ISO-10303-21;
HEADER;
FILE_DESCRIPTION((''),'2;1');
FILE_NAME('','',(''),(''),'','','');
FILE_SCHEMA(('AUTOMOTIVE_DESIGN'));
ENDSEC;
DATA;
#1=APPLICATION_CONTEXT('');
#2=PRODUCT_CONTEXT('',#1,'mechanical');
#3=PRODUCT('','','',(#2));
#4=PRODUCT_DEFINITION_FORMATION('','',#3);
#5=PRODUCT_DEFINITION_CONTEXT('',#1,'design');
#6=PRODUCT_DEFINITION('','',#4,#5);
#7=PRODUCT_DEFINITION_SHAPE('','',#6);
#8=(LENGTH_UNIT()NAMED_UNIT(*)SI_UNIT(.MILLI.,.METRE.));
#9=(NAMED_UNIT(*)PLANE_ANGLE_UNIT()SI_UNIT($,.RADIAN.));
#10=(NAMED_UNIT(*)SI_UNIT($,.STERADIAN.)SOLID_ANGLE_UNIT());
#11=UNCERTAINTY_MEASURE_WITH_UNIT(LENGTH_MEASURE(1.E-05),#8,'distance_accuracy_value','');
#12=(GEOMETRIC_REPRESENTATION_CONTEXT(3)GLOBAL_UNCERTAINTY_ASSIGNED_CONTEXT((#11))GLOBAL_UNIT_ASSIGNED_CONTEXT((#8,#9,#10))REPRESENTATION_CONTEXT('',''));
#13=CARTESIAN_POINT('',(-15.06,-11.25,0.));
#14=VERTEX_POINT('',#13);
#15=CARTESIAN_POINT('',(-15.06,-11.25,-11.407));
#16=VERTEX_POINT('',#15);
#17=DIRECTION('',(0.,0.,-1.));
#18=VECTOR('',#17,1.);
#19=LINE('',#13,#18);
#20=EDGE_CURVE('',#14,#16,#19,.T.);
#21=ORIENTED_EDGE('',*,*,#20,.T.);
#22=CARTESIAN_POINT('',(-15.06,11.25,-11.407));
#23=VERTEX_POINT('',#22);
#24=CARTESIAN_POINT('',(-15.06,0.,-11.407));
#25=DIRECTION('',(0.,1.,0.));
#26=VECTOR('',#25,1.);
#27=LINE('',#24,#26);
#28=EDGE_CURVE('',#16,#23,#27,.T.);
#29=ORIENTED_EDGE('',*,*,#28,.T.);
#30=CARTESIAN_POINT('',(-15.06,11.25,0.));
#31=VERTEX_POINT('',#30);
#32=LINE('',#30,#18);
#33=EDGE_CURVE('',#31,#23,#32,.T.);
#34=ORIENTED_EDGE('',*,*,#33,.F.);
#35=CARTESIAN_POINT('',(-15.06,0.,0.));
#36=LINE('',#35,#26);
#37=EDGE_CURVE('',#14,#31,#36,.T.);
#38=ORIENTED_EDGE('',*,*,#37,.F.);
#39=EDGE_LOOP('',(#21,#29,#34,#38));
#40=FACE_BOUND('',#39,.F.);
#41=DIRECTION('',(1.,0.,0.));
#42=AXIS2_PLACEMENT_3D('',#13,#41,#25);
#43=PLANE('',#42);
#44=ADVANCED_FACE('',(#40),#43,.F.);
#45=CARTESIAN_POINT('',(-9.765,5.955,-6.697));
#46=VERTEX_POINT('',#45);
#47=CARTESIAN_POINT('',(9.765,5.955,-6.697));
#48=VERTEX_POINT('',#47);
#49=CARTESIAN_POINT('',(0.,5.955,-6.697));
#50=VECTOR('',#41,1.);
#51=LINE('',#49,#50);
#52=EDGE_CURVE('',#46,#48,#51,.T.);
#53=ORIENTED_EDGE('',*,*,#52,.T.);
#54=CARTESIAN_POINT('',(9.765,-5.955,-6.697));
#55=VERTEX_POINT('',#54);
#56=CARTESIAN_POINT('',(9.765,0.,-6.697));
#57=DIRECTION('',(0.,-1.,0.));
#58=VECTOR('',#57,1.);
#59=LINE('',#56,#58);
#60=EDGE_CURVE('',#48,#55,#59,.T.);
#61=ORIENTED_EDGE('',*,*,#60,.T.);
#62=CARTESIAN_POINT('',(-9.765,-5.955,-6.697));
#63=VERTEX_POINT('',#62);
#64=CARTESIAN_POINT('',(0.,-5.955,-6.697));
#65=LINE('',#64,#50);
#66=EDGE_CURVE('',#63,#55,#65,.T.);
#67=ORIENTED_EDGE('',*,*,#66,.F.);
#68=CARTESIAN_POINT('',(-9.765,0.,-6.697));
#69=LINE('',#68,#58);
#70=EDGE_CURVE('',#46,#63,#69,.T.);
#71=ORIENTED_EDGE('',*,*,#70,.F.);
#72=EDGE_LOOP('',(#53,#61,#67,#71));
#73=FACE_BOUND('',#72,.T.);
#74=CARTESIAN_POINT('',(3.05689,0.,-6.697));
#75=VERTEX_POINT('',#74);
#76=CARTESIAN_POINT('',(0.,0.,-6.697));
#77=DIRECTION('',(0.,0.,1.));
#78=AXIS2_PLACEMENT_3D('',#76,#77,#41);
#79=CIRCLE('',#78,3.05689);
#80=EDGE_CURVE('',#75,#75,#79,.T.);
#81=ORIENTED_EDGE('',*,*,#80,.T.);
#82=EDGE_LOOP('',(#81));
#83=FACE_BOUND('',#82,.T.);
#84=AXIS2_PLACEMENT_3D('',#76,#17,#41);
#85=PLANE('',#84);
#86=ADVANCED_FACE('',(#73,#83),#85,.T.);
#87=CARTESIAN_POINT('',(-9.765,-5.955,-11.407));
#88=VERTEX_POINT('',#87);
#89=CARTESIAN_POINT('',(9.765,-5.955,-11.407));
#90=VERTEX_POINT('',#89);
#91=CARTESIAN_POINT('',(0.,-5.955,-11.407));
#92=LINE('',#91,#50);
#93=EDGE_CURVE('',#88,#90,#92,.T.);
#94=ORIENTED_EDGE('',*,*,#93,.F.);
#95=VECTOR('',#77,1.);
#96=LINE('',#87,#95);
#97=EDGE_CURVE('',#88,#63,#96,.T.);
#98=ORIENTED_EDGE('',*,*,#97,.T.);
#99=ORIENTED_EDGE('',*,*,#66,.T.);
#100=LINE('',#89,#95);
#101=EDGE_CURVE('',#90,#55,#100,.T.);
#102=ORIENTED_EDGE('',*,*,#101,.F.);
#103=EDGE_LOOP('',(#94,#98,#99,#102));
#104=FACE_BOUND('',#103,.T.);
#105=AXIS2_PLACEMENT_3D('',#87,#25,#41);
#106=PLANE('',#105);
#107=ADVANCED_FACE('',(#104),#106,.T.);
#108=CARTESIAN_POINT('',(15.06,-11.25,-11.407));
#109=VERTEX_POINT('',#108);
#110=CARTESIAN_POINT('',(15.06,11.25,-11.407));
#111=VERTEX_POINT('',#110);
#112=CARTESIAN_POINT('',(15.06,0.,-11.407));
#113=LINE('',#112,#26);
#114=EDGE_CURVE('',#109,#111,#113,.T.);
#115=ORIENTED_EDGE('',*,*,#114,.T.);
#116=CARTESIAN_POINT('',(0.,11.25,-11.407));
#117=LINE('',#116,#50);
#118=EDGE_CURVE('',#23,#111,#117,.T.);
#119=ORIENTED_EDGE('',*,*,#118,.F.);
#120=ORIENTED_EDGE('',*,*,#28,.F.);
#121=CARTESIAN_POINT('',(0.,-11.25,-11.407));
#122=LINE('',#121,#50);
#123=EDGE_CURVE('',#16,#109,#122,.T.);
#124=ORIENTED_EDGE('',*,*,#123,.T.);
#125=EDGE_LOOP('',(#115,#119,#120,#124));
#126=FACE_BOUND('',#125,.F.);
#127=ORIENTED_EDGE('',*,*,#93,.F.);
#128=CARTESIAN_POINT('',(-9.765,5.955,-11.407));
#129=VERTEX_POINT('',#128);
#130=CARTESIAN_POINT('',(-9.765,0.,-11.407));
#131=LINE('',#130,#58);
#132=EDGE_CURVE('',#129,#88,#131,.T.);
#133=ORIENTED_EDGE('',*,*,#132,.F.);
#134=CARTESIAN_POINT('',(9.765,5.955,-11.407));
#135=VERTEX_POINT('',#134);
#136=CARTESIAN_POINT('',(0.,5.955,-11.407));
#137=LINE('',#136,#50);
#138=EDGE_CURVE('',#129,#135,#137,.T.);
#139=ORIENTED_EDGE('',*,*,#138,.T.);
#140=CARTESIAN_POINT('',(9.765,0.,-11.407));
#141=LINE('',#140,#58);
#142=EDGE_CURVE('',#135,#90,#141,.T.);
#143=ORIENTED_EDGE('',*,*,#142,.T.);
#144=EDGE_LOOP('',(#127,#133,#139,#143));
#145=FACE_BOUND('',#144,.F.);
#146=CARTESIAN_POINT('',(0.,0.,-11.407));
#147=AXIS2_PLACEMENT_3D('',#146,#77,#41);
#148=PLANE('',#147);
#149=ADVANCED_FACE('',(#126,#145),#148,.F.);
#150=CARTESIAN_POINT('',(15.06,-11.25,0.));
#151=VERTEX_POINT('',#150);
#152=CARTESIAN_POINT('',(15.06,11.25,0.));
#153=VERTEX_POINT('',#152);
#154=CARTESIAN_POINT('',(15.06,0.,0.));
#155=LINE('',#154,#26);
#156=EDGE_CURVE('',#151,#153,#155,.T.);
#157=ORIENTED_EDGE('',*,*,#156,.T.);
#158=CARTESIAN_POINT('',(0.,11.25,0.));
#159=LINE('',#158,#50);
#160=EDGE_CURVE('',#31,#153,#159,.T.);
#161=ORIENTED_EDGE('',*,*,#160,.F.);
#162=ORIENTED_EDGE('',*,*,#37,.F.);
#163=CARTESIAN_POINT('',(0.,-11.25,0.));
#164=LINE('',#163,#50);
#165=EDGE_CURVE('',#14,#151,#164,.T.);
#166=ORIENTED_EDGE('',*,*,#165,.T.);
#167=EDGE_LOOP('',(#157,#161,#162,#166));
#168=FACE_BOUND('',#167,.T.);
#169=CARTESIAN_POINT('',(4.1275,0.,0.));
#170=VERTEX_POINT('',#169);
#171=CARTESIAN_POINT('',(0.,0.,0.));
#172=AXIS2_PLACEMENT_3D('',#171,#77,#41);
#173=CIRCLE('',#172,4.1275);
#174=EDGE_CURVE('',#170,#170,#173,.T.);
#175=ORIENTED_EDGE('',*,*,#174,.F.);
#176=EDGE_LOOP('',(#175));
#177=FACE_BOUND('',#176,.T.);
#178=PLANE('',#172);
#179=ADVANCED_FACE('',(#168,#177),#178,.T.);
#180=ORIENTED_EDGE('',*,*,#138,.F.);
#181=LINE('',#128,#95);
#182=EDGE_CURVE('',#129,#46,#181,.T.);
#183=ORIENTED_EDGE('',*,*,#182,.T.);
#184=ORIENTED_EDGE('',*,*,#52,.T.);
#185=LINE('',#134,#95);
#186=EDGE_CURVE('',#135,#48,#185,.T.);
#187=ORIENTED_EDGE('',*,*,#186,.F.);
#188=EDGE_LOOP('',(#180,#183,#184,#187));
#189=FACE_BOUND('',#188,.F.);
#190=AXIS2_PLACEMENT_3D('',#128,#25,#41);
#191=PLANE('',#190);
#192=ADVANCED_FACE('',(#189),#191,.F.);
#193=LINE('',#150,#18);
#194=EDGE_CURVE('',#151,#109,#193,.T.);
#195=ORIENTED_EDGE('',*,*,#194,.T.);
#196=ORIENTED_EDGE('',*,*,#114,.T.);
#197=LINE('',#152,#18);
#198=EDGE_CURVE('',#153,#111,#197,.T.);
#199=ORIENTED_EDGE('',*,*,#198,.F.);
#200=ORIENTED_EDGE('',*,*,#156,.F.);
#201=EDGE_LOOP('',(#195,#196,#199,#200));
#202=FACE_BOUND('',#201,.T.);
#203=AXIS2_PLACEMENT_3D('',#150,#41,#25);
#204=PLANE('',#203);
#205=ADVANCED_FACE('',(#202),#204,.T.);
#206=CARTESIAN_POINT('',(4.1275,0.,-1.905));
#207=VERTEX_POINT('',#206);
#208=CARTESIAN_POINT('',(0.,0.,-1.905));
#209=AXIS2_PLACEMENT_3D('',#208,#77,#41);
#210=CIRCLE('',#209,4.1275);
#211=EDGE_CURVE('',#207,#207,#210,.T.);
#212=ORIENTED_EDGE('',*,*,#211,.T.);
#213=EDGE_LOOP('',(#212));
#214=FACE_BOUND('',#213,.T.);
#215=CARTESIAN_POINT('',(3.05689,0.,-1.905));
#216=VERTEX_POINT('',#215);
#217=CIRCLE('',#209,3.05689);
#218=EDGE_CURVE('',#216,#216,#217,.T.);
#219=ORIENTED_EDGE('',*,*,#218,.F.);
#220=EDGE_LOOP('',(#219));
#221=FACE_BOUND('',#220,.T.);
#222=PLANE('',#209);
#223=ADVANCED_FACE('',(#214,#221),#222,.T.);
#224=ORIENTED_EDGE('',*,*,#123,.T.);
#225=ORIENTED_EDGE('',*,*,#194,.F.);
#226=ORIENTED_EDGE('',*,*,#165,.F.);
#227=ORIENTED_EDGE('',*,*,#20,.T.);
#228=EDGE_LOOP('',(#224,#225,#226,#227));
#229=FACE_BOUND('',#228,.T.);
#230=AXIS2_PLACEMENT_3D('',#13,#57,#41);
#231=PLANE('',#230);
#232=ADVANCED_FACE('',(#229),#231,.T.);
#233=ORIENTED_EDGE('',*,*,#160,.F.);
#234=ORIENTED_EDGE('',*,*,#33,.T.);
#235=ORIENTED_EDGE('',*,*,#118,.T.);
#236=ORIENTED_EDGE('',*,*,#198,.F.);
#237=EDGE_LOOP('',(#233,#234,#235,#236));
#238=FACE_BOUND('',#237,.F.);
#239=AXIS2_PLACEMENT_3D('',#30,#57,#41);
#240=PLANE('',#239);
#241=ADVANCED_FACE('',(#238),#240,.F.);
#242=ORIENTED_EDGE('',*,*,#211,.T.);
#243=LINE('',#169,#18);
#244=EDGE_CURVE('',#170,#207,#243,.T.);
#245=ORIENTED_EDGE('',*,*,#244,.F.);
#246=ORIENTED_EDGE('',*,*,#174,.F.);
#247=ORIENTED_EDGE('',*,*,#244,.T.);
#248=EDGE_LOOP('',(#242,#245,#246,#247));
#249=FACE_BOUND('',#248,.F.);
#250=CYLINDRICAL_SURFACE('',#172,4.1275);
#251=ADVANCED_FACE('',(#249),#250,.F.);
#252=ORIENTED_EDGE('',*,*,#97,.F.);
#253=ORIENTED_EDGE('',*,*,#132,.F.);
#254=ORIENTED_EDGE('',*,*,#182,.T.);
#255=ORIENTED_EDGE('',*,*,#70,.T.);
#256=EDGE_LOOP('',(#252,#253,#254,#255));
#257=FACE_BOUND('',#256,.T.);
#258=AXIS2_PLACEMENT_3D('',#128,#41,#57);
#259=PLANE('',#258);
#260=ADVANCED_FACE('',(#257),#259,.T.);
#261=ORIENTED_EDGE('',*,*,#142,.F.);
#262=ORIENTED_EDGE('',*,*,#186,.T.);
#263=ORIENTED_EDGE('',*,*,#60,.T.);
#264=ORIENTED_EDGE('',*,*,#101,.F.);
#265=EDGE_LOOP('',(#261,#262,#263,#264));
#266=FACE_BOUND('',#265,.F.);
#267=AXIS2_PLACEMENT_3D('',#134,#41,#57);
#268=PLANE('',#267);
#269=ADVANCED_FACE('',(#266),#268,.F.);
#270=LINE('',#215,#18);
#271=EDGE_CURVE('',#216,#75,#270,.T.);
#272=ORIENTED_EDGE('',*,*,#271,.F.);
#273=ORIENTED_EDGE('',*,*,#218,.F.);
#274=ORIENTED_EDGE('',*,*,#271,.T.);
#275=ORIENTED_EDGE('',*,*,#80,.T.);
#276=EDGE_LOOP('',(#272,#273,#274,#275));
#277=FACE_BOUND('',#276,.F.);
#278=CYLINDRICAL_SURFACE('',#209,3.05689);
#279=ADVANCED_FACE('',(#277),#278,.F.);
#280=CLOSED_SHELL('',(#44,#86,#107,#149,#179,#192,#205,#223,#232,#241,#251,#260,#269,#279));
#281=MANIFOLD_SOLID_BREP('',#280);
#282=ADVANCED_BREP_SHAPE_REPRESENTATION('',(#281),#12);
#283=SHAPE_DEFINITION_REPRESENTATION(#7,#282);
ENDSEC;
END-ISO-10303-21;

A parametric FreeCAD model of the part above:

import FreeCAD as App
import Part
import Sketcher

V = App.Vector
Q = App.Units.Quantity

doc = App.newDocument("Part")
body = doc.addObject("PartDesign::Body", "Body")

# Sketch on XY plane
sketch1 = doc.addObject("Sketcher::SketchObject", "Sketch")
body.addObject(sketch1)
sketch1.AttachmentSupport = (doc.XY_Plane, [""])
sketch1.MapMode = "FlatFace"
sketch1.addGeometry([
    Part.LineSegment(V(-15, 11, 0), V(-15, -11, 0)),
    Part.LineSegment(V(-15, -11, 0), V(15, -11, 0)),
    Part.LineSegment(V(15, -11, 0), V(15, 11, 0)),
    Part.LineSegment(V(15, 11, 0), V(-15, 11, 0)),
], False)
sketch1.addConstraint([
    Sketcher.Constraint("Coincident", 0, 2, 1, 1),
    Sketcher.Constraint("Coincident", 1, 2, 2, 1),
    Sketcher.Constraint("Coincident", 2, 2, 3, 1),
    Sketcher.Constraint("Coincident", 3, 2, 0, 1),
    Sketcher.Constraint("Vertical", 0),
    Sketcher.Constraint("Horizontal", 1),
    Sketcher.Constraint("Vertical", 2),
    Sketcher.Constraint("Horizontal", 3),
    Sketcher.Constraint("Symmetric", 0, 2, 2, 2, -1, 1),
    Sketcher.Constraint("DistanceX", 1, 1, 1, 2, 30.12),
    Sketcher.Constraint("DistanceY", 0, 2, 0, 1, 22.5),
])
pad1 = doc.addObject("PartDesign::Pad", "Pad")
body.addObject(pad1)
pad1.Profile = sketch1
pad1.Length = 11.407
pad1.Reversed = True

# Sketch on XY plane
sketch2 = doc.addObject("Sketcher::SketchObject", "Sketch001")
body.addObject(sketch2)
sketch2.AttachmentSupport = (doc.XY_Plane, [""])
sketch2.MapMode = "FlatFace"
sketch2.AttachmentOffset = App.Placement(V(0, 0, -11.407), App.Rotation())
sketch2.addGeometry([
    Part.LineSegment(V(-10, -6, 0), V(-10, 6, 0)),
    Part.LineSegment(V(-10, 6, 0), V(10, 6, 0)),
    Part.LineSegment(V(10, 6, 0), V(10, -6, 0)),
    Part.LineSegment(V(10, -6, 0), V(-10, -6, 0)),
], False)
sketch2.addConstraint([
    Sketcher.Constraint("Coincident", 0, 2, 1, 1),
    Sketcher.Constraint("Coincident", 1, 2, 2, 1),
    Sketcher.Constraint("Coincident", 2, 2, 3, 1),
    Sketcher.Constraint("Coincident", 3, 2, 0, 1),
    Sketcher.Constraint("Vertical", 0),
    Sketcher.Constraint("Horizontal", 1),
    Sketcher.Constraint("Vertical", 2),
    Sketcher.Constraint("Horizontal", 3),
    Sketcher.Constraint("Symmetric", 0, 2, 2, 2, -1, 1),
    Sketcher.Constraint("DistanceX", 1, 1, 1, 2, 19.53),
    Sketcher.Constraint("DistanceY", 0, 1, 0, 2, 11.91),
])
pocket1 = doc.addObject("PartDesign::Pocket", "Pocket")
body.addObject(pocket1)
pocket1.Profile = sketch2
pocket1.Length = 4.71
pocket1.Reversed = True

# Sketch on XY plane
sketch3 = doc.addObject("Sketcher::SketchObject", "Sketch002")
body.addObject(sketch3)
sketch3.AttachmentSupport = (doc.XY_Plane, [""])
sketch3.MapMode = "FlatFace"
sketch3.addGeometry(Part.Circle(V(0, 0, 0), V(0, 0, 1), 4.1), False)
sketch3.addConstraint([
    Sketcher.Constraint("Coincident", 0, 3, -1, 1),
    Sketcher.Constraint("Diameter", 0, Q("0.325 in")),
])
pocket2 = doc.addObject("PartDesign::Pocket", "Pocket001")
body.addObject(pocket2)
pocket2.Profile = sketch3
pocket2.Length = Q("0.075 in")

# Sketch on XY plane
sketch4 = doc.addObject("Sketcher::SketchObject", "Sketch003")
body.addObject(sketch4)
sketch4.AttachmentSupport = (doc.XY_Plane, [""])
sketch4.MapMode = "FlatFace"
sketch4.AttachmentOffset = App.Placement(V(0, 0, -0.075 * 25.4), App.Rotation())
sketch4.addGeometry(Part.Circle(V(0, 0, 0), V(0, 0, 1), 3.1), False)
sketch4.addConstraint([
    Sketcher.Constraint("Coincident", 0, 3, -1, 1),
    Sketcher.Constraint("Diameter", 0, Q("0.2407 in")),
])
pocket3 = doc.addObject("PartDesign::Pocket", "Pocket002")
body.addObject(pocket3)
pocket3.Profile = sketch4
pocket3.Length = Q("0.239 in")

doc.recompute()
